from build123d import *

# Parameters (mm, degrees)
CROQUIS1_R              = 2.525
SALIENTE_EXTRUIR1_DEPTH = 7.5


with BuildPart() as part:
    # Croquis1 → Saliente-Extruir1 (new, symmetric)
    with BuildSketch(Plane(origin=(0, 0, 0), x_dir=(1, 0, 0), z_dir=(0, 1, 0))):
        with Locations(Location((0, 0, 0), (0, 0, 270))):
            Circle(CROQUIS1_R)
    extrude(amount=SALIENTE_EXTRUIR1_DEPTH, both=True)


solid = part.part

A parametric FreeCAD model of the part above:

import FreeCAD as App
import Part
import Sketcher
from FreeCAD import Vector
Q = App.Units.Quantity

doc = App.newDocument("Part")
params = doc.addObject("Spreadsheet::Sheet", "Params")
for row, (alias, value) in enumerate([
    ("sketch1_diameter", "5.05 mm"),
    ("pad1_length", "15 mm"),
], start=1):
    params.set(f"A{row}", alias)
    params.set(f"B{row}", "=" + value)
    params.setAlias(f"B{row}", alias)

body = doc.addObject("PartDesign::Body", "Body")

# Sketch on XZ plane
sketch1 = body.newObject("Sketcher::SketchObject", "Sketch")
sketch1.AttachmentSupport = (doc.getObject("XZ_Plane"), [""])
sketch1.MapMode = "FlatFace"
sketch1.addGeometry(Part.Circle(Vector(0, 0, 0), Vector(0, 0, 1), 2.5), False)
sketch1.addConstraint([
    Sketcher.Constraint("Coincident", 0, 3, -1, 1),
    Sketcher.Constraint("Diameter", 0, Q("5.05 mm")),
])
sketch1.setExpression("Constraints[1]", "Params.sketch1_diameter")
pad1 = body.newObject("PartDesign::Pad", "Pad")
pad1.Profile = sketch1
pad1.setExpression("Length", "Params.pad1_length")
pad1.Midplane = True

doc.recompute()
